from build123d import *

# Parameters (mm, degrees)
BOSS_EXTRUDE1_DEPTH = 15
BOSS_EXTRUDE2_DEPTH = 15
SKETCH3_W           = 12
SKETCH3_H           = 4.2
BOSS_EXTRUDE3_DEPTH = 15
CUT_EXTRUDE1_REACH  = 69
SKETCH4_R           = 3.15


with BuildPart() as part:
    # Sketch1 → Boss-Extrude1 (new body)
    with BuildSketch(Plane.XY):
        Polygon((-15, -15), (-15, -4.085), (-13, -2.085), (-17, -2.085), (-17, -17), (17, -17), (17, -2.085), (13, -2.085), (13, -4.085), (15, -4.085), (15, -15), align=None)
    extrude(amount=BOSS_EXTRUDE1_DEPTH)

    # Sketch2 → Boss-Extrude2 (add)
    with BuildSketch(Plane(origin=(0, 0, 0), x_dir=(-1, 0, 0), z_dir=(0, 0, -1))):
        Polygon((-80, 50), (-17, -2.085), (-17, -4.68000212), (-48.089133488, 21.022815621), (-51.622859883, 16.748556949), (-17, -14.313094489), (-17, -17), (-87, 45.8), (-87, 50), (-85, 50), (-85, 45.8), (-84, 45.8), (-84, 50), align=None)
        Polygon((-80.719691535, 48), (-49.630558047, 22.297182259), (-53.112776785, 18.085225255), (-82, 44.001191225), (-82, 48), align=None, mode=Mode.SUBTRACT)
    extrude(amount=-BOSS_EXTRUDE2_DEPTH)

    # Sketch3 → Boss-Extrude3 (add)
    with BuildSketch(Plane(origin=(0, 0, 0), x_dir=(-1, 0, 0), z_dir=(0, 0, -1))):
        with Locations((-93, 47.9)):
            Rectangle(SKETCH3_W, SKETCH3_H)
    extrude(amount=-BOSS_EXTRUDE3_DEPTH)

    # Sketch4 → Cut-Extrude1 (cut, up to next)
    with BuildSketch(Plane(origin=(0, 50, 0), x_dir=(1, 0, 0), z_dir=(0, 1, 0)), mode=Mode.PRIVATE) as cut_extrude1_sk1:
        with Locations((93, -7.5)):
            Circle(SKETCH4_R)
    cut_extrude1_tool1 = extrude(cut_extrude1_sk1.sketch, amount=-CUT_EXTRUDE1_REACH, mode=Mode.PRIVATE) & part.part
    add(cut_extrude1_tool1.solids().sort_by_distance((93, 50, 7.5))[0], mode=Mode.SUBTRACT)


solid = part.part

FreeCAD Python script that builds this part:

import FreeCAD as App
import Part
import Sketcher

V = App.Vector
Q = App.Units.Quantity

doc = App.newDocument("Part")
body = doc.addObject("PartDesign::Body", "Body")

# Sketch on XY plane
sketch1 = body.newObject("Sketcher::SketchObject", "Sketch")
sketch1.AttachmentSupport = (doc.getObject("XY_Plane"), [""])
sketch1.MapMode = "FlatFace"
sketch1.addGeometry(Part.LineSegment(V(-15, -15, 0), V(-15, -4.1, 0)), False)
sketch1.addGeometry(Part.LineSegment(V(-15, -4.1, 0), V(-13, -2.1, 0)), False)
sketch1.addGeometry(Part.LineSegment(V(-13, -2.1, 0), V(-17, -2.1, 0)), False)
sketch1.addGeometry(Part.LineSegment(V(-17, -2.1, 0), V(-17, -17, 0)), False)
sketch1.addGeometry(Part.LineSegment(V(-17, -17, 0), V(17, -17, 0)), False)
sketch1.addGeometry(Part.LineSegment(V(17, -17, 0), V(17, -2.1, 0)), False)
sketch1.addGeometry(Part.LineSegment(V(17, -2.1, 0), V(13, -2.1, 0)), False)
sketch1.addGeometry(Part.LineSegment(V(13, -2.1, 0), V(13, -4.1, 0)), False)
sketch1.addGeometry(Part.LineSegment(V(13, -4.1, 0), V(15, -4.1, 0)), False)
sketch1.addGeometry(Part.LineSegment(V(15, -4.1, 0), V(15, -15, 0)), False)
sketch1.addGeometry(Part.LineSegment(V(15, -15, 0), V(-15, -15, 0)), False)
sketch1.addConstraint(Sketcher.Constraint("Coincident", 0, 2, 1, 1))
sketch1.addConstraint(Sketcher.Constraint("Coincident", 1, 2, 2, 1))
sketch1.addConstraint(Sketcher.Constraint("Coincident", 2, 2, 3, 1))
sketch1.addConstraint(Sketcher.Constraint("Coincident", 3, 2, 4, 1))
sketch1.addConstraint(Sketcher.Constraint("Coincident", 4, 2, 5, 1))
sketch1.addConstraint(Sketcher.Constraint("Coincident", 5, 2, 6, 1))
sketch1.addConstraint(Sketcher.Constraint("Coincident", 6, 2, 7, 1))
sketch1.addConstraint(Sketcher.Constraint("Coincident", 7, 2, 8, 1))
sketch1.addConstraint(Sketcher.Constraint("Coincident", 8, 2, 9, 1))
sketch1.addConstraint(Sketcher.Constraint("Coincident", 9, 2, 10, 1))
sketch1.addConstraint(Sketcher.Constraint("Coincident", 10, 2, 0, 1))
sketch1.addConstraint(Sketcher.Constraint("Vertical", 0))
sketch1.addConstraint(Sketcher.Constraint("Horizontal", 2))
sketch1.addConstraint(Sketcher.Constraint("Vertical", 3))
sketch1.addConstraint(Sketcher.Constraint("Horizontal", 4))
sketch1.addConstraint(Sketcher.Constraint("Vertical", 5))
sketch1.addConstraint(Sketcher.Constraint("Horizontal", 6))
sketch1.addConstraint(Sketcher.Constraint("Vertical", 7))
sketch1.addConstraint(Sketcher.Constraint("Horizontal", 8))
sketch1.addConstraint(Sketcher.Constraint("Vertical", 9))
sketch1.addConstraint(Sketcher.Constraint("Horizontal", 10))
sketch1.addConstraint(Sketcher.Constraint("Symmetric", 2, 2, 5, 2, -2))
sketch1.addConstraint(Sketcher.Constraint("Symmetric", 0, 2, 8, 2, -2))
sketch1.addConstraint(Sketcher.Constraint("Equal", 2, 6))
sketch1.addConstraint(Sketcher.Constraint("Equal", 8, 7))
sketch1.addConstraint(Sketcher.Constraint("DistanceX", 2, 2, 2, 1, Q("4 mm")))
sketch1.addConstraint(Sketcher.Constraint("DistanceX", 4, 1, 4, 2, Q("34 mm")))
sketch1.addConstraint(Sketcher.Constraint("DistanceX", 8, 1, 8, 2, Q("2 mm")))
sketch1.addConstraint(Sketcher.Constraint("DistanceY", 3, 2, -1, 1, Q("17 mm")))
sketch1.addConstraint(Sketcher.Constraint("DistanceY", 9, 2, -1, 1, Q("15 mm")))
sketch1.addConstraint(Sketcher.Constraint("DistanceY", 0, 1, 0, 2, Q("10.915 mm")))
pad1 = body.newObject("PartDesign::Pad", "Pad")
pad1.Profile = sketch1
pad1.Length = 15

# Sketch on XY plane
sketch2 = body.newObject("Sketcher::SketchObject", "Sketch001")
sketch2.AttachmentSupport = (doc.getObject("XY_Plane"), [""])
sketch2.MapMode = "FlatFace"
sketch2.addGeometry(Part.LineSegment(V(17, -2.085, 0), V(80, 50, 0)), False)
sketch2.addGeometry(Part.LineSegment(V(80, 50, 0), V(84, 50, 0)), False)
sketch2.addGeometry(Part.LineSegment(V(84, 50, 0), V(84, 45.8, 0)), False)
sketch2.addGeometry(Part.LineSegment(V(84, 45.8, 0), V(85, 45.8, 0)), False)
sketch2.addGeometry(Part.LineSegment(V(85, 45.8, 0), V(85, 50, 0)), False)
sketch2.addGeometry(Part.LineSegment(V(85, 50, 0), V(87, 50, 0)), False)
sketch2.addGeometry(Part.LineSegment(V(87, 50, 0), V(87, 45.8, 0)), False)
sketch2.addGeometry(Part.LineSegment(V(87, 45.8, 0), V(17, -17, 0)), False)
sketch2.addGeometry(Part.LineSegment(V(17, -17, 0), V(17, -14.313094, 0)), False)
sketch2.addGeometry(Part.LineSegment(V(17, -14.313094, 0), V(51.62286, 16.748557, 0)), False)
sketch2.addGeometry(Part.LineSegment(V(51.62286, 16.748557, 0), V(48.089133, 21.022816, 0)), False)
sketch2.addGeometry(Part.LineSegment(V(48.089133, 21.022816, 0), V(17, -4.680002, 0)), False)
sketch2.addGeometry(Part.LineSegment(V(17, -4.680002, 0), V(17, -2.085, 0)), False)
sketch2.addGeometry(Part.LineSegment(V(80.719692, 48, 0), V(49.630558, 22.297182, 0)), False)
sketch2.addGeometry(Part.LineSegment(V(49.630558, 22.297182, 0), V(53.112777, 18.085225, 0)), False)
sketch2.addGeometry(Part.LineSegment(V(53.112777, 18.085225, 0), V(82, 44.001191, 0)), False)
sketch2.addGeometry(Part.LineSegment(V(82, 44.001191, 0), V(82, 48, 0)), False)
sketch2.addGeometry(Part.LineSegment(V(82, 48, 0), V(80.719692, 48, 0)), False)
sketch2.addConstraint(Sketcher.Constraint("Coincident", 0, 2, 1, 1))
sketch2.addConstraint(Sketcher.Constraint("Coincident", 1, 2, 2, 1))
sketch2.addConstraint(Sketcher.Constraint("Coincident", 2, 2, 3, 1))
sketch2.addConstraint(Sketcher.Constraint("Coincident", 3, 2, 4, 1))
sketch2.addConstraint(Sketcher.Constraint("Coincident", 4, 2, 5, 1))
sketch2.addConstraint(Sketcher.Constraint("Coincident", 5, 2, 6, 1))
sketch2.addConstraint(Sketcher.Constraint("Coincident", 6, 2, 7, 1))
sketch2.addConstraint(Sketcher.Constraint("Coincident", 7, 2, 8, 1))
sketch2.addConstraint(Sketcher.Constraint("Coincident", 8, 2, 9, 1))
sketch2.addConstraint(Sketcher.Constraint("Coincident", 9, 2, 10, 1))
sketch2.addConstraint(Sketcher.Constraint("Coincident", 10, 2, 11, 1))
sketch2.addConstraint(Sketcher.Constraint("Coincident", 11, 2, 12, 1))
sketch2.addConstraint(Sketcher.Constraint("Coincident", 12, 2, 0, 1))
sketch2.addConstraint(Sketcher.Constraint("Coincident", 13, 2, 14, 1))
sketch2.addConstraint(Sketcher.Constraint("Coincident", 14, 2, 15, 1))
sketch2.addConstraint(Sketcher.Constraint("Coincident", 15, 2, 16, 1))
sketch2.addConstraint(Sketcher.Constraint("Coincident", 16, 2, 17, 1))
sketch2.addConstraint(Sketcher.Constraint("Coincident", 17, 2, 13, 1))
sketch2.addConstraint(Sketcher.Constraint("Horizontal", 1))
sketch2.addConstraint(Sketcher.Constraint("Vertical", 2))
sketch2.addConstraint(Sketcher.Constraint("Horizontal", 3))
sketch2.addConstraint(Sketcher.Constraint("Vertical", 4))
sketch2.addConstraint(Sketcher.Constraint("Horizontal", 5))
sketch2.addConstraint(Sketcher.Constraint("Vertical", 6))
sketch2.addConstraint(Sketcher.Constraint("Vertical", 8))
sketch2.addConstraint(Sketcher.Constraint("Vertical", 12))
sketch2.addConstraint(Sketcher.Constraint("Vertical", 16))
sketch2.addConstraint(Sketcher.Constraint("Horizontal", 17))
sketch2.addConstraint(Sketcher.Constraint("DistanceX", 1, 1, 1, 2, Q("4 mm")))
sketch2.addConstraint(Sketcher.Constraint("DistanceX", 3, 1, 3, 2, Q("1 mm")))
sketch2.addConstraint(Sketcher.Constraint("DistanceX", 5, 1, 5, 2, Q("2 mm")))
sketch2.addConstraint(Sketcher.Constraint("DistanceY", 2, 2, 2, 1, Q("4.2 mm")))
sketch2.addConstraint(Sketcher.Constraint("DistanceY", 4, 1, 4, 2, Q("4.2 mm")))
sketch2.addConstraint(Sketcher.Constraint("DistanceY", 6, 2, 6, 1, Q("4.2 mm")))
sketch2.addConstraint(Sketcher.Constraint("DistanceX", -1, 1, 0, 2, Q("80 mm")))
sketch2.addConstraint(Sketcher.Constraint("DistanceY", -1, 1, 0, 2, Q("50 mm")))
sketch2.addConstraint(Sketcher.Constraint("DistanceX", -1, 1, 7, 2, Q("17 mm")))
sketch2.addConstraint(Sketcher.Constraint("DistanceY", 7, 2, -1, 1, Q("17 mm")))
sketch2.addConstraint(Sketcher.Constraint("DistanceX", -1, 1, 11, 2, Q("17 mm")))
sketch2.addConstraint(Sketcher.Constraint("DistanceX", -1, 1, 15, 2, Q("82 mm")))
sketch2.addConstraint(Sketcher.Constraint("DistanceY", -1, 1, 16, 2, Q("48 mm")))
sketch2.addConstraint(Sketcher.Constraint("DistanceY", 12, 2, -1, 1, Q("2.085 mm")))
sketch2.addConstraint(Sketcher.Constraint("DistanceX", 17, 2, 17, 1, Q("1.280308 mm")))
sketch2.addConstraint(Sketcher.Constraint("DistanceY", 16, 1, 16, 2, Q("3.998809 mm")))
sketch2.addConstraint(Sketcher.Constraint("DistanceX", 13, 2, 9, 2, Q("1.992302 mm")))
sketch2.addConstraint(Sketcher.Constraint("Distance", 14, Q("5.465019 mm")))
sketch2.addConstraint(Sketcher.Constraint("Distance", 15, Q("38.80862 mm")))
sketch2.addConstraint(Sketcher.Constraint("DistanceY", 8, 1, 8, 2, Q("2.686906 mm")))
sketch2.addConstraint(Sketcher.Constraint("DistanceY", 12, 1, 12, 2, Q("2.595002 mm")))
sketch2.addConstraint(Sketcher.Constraint("DistanceX", -1, 1, 9, 2, Q("51.62286 mm")))
sketch2.addConstraint(Sketcher.Constraint("DistanceY", 9, 2, 10, 2, Q("4.274259 mm")))
sketch2.addConstraint(Sketcher.Constraint("DistanceY", 11, 2, 9, 2, Q("21.428559 mm")))
sketch2.addConstraint(Sketcher.Constraint("DistanceY", 9, 2, 14, 2, Q("1.336668 mm")))
sketch2.addConstraint(Sketcher.Constraint("Distance", 10, Q("5.545855 mm")))
pad2 = body.newObject("PartDesign::Pad", "Pad001")
pad2.Profile = sketch2
pad2.Length = 15

# Sketch on XY plane
sketch3 = body.newObject("Sketcher::SketchObject", "Sketch002")
sketch3.AttachmentSupport = (doc.getObject("XY_Plane"), [""])
sketch3.MapMode = "FlatFace"
sketch3.addGeometry(Part.LineSegment(V(99, 50, 0), V(99, 45.8, 0)), False)
sketch3.addGeometry(Part.LineSegment(V(99, 45.8, 0), V(87, 45.8, 0)), False)
sketch3.addGeometry(Part.LineSegment(V(87, 45.8, 0), V(87, 50, 0)), False)
sketch3.addGeometry(Part.LineSegment(V(87, 50, 0), V(99, 50, 0)), False)
sketch3.addConstraint(Sketcher.Constraint("Coincident", 0, 2, 1, 1))
sketch3.addConstraint(Sketcher.Constraint("Coincident", 1, 2, 2, 1))
sketch3.addConstraint(Sketcher.Constraint("Coincident", 2, 2, 3, 1))
sketch3.addConstraint(Sketcher.Constraint("Coincident", 3, 2, 0, 1))
sketch3.addConstraint(Sketcher.Constraint("Vertical", 0))
sketch3.addConstraint(Sketcher.Constraint("Horizontal", 1))
sketch3.addConstraint(Sketcher.Constraint("Vertical", 2))
sketch3.addConstraint(Sketcher.Constraint("Horizontal", 3))
sketch3.addConstraint(Sketcher.Constraint("DistanceX", 1, 2, 1, 1, Q("12 mm")))
sketch3.addConstraint(Sketcher.Constraint("DistanceY", 0, 2, 0, 1, Q("4.2 mm")))
sketch3.addConstraint(Sketcher.Constraint("DistanceX", -1, 1, 0, 2, Q("99 mm")))
sketch3.addConstraint(Sketcher.Constraint("DistanceY", -1, 1, 2, 2, Q("50 mm")))
pad3 = body.newObject("PartDesign::Pad", "Pad002")
pad3.Profile = sketch3
pad3.Length = 15

# Sketch on XZ plane
sketch4 = body.newObject("Sketcher::SketchObject", "Sketch003")
sketch4.AttachmentSupport = (doc.getObject("XZ_Plane"), [""])
sketch4.MapMode = "FlatFace"
sketch4.AttachmentOffset = App.Placement(V(0, 0, -50), App.Rotation())
sketch4.addGeometry(Part.Circle(V(93, 7.5, 0), V(0, 0, 1), 3.1), False)
sketch4.addConstraint(Sketcher.Constraint("Diameter", 0, Q("6.3 mm")))
sketch4.addConstraint(Sketcher.Constraint("DistanceX", -1, 1, 0, 3, Q("93 mm")))
sketch4.addConstraint(Sketcher.Constraint("DistanceY", -1, 1, 0, 3, Q("7.5 mm")))
pocket1 = body.newObject("PartDesign::Pocket", "Pocket")
pocket1.Profile = sketch4
pocket1.Type = "UpToFirst"
pocket1.Reversed = True

doc.recompute()
